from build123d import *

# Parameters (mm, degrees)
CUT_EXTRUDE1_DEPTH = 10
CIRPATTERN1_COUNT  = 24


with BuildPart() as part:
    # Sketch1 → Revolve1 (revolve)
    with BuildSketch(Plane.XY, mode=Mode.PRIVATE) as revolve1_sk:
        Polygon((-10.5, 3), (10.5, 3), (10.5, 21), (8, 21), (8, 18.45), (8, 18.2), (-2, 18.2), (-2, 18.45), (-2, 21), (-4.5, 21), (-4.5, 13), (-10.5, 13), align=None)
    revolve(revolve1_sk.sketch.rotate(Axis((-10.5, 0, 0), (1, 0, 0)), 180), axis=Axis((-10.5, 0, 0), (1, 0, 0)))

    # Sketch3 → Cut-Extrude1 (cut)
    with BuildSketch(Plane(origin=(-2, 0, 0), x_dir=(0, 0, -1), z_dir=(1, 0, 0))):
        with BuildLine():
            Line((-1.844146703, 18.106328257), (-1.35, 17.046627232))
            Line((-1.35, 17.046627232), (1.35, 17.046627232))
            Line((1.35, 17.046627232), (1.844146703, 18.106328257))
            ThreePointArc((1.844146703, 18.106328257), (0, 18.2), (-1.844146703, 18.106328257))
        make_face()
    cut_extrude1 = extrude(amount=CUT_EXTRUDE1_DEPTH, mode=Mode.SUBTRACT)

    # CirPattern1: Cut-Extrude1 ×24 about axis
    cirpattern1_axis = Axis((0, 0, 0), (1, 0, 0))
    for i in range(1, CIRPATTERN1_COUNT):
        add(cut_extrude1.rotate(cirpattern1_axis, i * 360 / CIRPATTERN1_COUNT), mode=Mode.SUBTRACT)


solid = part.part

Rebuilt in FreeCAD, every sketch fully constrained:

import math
import FreeCAD as App
import Part
import Sketcher

V = App.Vector
Q = App.Units.Quantity


def add_polygon(sketch, points):
    """Adds a closed chain of lines whose ends are joined by coincident constraints."""
    first, n = sketch.GeometryCount, len(points)
    for a, b in zip(points, points[1:] + points[:1]):
        sketch.addGeometry(Part.LineSegment(App.Vector(*a, 0), App.Vector(*b, 0)), False)
    for i in range(n):
        sketch.addConstraint(Sketcher.Constraint("Coincident", first + i, 2, first + (i + 1) % n, 1))

doc = App.newDocument("Part")
body = doc.addObject("PartDesign::Body", "Body")

# Sketch on XY plane
sketch1 = body.newObject("Sketcher::SketchObject", "Sketch")
sketch1.AttachmentSupport = (doc.getObject("XY_Plane"), [""])
sketch1.MapMode = "FlatFace"
add_polygon(sketch1, [(-10.5, 3), (10.5, 3), (10.5, 21), (8, 21), (8, 18.2), (-2, 18.2), (-2, 21), (-4.5, 21), (-4.5, 13), (-10.5, 13)])  # lines 0-9
sketch1.addConstraint([
    Sketcher.Constraint("Horizontal", 0),
    Sketcher.Constraint("Vertical", 1),
    Sketcher.Constraint("Horizontal", 2),
    Sketcher.Constraint("Vertical", 3),
    Sketcher.Constraint("Horizontal", 4),
    Sketcher.Constraint("Vertical", 5),
    Sketcher.Constraint("Horizontal", 6),
    Sketcher.Constraint("Vertical", 7),
    Sketcher.Constraint("Horizontal", 8),
    Sketcher.Constraint("Vertical", 9),
    Sketcher.Constraint("Horizontal", 2, 2, 5, 2),
    Sketcher.Constraint("Equal", 2, 6),
    Sketcher.Constraint("Equal", 4, 9),
    Sketcher.Constraint("DistanceX", 0, 1, 0, 2, 21.0),
    Sketcher.Constraint("DistanceX", 4, 2, 4, 1, 10.0),
    Sketcher.Constraint("DistanceX", 8, 2, 8, 1, 6.0),
    Sketcher.Constraint("DistanceY", 1, 1, 1, 2, 18.0),
    Sketcher.Constraint("DistanceY", 3, 2, 3, 1, 2.8),
    Sketcher.Constraint("DistanceY", -1, 1, 0, 2, 3.0),
    Sketcher.Constraint("DistanceX", -1, 1, 2, 2, 8.0),
])
revolution = body.newObject("PartDesign::Revolution", "Revolution")
revolution.Profile = sketch1
revolution.ReferenceAxis = (sketch1, ["H_Axis"])
revolution.Angle = 360

# Sketch on YZ plane
sketch2 = body.newObject("Sketcher::SketchObject", "Sketch001")
sketch2.AttachmentSupport = (doc.getObject("YZ_Plane"), [""])
sketch2.MapMode = "FlatFace"
sketch2.AttachmentOffset = App.Placement(V(0, 0, -2), App.Rotation())
sketch2.addGeometry([
    Part.LineSegment(V(18.106328, 1.844147, 0), V(17.046627, 1.35, 0)),
    Part.LineSegment(V(17.046627, 1.35, 0), V(17.046627, -1.35, 0)),
    Part.LineSegment(V(17.046627, -1.35, 0), V(18.106328, -1.844147, 0)),
    Part.ArcOfCircle(Part.Circle(V(0, 0, 0), V(0, 0, 1), 18.2), math.radians(-5.815575), math.radians(5.815575)),
], False)
sketch2.addConstraint([
    Sketcher.Constraint("Coincident", 0, 2, 1, 1),
    Sketcher.Constraint("Coincident", 1, 2, 2, 1),
    Sketcher.Constraint("Coincident", 2, 2, 3, 1),
    Sketcher.Constraint("Coincident", 3, 2, 0, 1),
    Sketcher.Constraint("Vertical", 1),
    Sketcher.Constraint("Coincident", 3, 3, -1, 1),
    Sketcher.Constraint("Vertical", 2, 2, 3, 2),
    Sketcher.Constraint("Equal", 0, 2),
    Sketcher.Constraint("Radius", 3, 18.2),
    Sketcher.Constraint("Angle", 0, Q("-155 deg")),
    Sketcher.Constraint("DistanceY", 1, 2, 1, 1, 2.7),
    Sketcher.Constraint("DistanceX", 1, 2, 2, 2, 1.059701),
])
pocket1 = body.newObject("PartDesign::Pocket", "Pocket")
pocket1.Profile = sketch2
pocket1.Length = 10
pocket1.Reversed = True
doc.recompute()

polarpattern = body.newObject("PartDesign::PolarPattern", "PolarPattern")
polarpattern.Originals = [pocket1]
polarpattern.Axis = (doc.getObject("X_Axis"), [""])
polarpattern.Angle = 360
polarpattern.Occurrences = 24
body.Tip = polarpattern

doc.recompute()
